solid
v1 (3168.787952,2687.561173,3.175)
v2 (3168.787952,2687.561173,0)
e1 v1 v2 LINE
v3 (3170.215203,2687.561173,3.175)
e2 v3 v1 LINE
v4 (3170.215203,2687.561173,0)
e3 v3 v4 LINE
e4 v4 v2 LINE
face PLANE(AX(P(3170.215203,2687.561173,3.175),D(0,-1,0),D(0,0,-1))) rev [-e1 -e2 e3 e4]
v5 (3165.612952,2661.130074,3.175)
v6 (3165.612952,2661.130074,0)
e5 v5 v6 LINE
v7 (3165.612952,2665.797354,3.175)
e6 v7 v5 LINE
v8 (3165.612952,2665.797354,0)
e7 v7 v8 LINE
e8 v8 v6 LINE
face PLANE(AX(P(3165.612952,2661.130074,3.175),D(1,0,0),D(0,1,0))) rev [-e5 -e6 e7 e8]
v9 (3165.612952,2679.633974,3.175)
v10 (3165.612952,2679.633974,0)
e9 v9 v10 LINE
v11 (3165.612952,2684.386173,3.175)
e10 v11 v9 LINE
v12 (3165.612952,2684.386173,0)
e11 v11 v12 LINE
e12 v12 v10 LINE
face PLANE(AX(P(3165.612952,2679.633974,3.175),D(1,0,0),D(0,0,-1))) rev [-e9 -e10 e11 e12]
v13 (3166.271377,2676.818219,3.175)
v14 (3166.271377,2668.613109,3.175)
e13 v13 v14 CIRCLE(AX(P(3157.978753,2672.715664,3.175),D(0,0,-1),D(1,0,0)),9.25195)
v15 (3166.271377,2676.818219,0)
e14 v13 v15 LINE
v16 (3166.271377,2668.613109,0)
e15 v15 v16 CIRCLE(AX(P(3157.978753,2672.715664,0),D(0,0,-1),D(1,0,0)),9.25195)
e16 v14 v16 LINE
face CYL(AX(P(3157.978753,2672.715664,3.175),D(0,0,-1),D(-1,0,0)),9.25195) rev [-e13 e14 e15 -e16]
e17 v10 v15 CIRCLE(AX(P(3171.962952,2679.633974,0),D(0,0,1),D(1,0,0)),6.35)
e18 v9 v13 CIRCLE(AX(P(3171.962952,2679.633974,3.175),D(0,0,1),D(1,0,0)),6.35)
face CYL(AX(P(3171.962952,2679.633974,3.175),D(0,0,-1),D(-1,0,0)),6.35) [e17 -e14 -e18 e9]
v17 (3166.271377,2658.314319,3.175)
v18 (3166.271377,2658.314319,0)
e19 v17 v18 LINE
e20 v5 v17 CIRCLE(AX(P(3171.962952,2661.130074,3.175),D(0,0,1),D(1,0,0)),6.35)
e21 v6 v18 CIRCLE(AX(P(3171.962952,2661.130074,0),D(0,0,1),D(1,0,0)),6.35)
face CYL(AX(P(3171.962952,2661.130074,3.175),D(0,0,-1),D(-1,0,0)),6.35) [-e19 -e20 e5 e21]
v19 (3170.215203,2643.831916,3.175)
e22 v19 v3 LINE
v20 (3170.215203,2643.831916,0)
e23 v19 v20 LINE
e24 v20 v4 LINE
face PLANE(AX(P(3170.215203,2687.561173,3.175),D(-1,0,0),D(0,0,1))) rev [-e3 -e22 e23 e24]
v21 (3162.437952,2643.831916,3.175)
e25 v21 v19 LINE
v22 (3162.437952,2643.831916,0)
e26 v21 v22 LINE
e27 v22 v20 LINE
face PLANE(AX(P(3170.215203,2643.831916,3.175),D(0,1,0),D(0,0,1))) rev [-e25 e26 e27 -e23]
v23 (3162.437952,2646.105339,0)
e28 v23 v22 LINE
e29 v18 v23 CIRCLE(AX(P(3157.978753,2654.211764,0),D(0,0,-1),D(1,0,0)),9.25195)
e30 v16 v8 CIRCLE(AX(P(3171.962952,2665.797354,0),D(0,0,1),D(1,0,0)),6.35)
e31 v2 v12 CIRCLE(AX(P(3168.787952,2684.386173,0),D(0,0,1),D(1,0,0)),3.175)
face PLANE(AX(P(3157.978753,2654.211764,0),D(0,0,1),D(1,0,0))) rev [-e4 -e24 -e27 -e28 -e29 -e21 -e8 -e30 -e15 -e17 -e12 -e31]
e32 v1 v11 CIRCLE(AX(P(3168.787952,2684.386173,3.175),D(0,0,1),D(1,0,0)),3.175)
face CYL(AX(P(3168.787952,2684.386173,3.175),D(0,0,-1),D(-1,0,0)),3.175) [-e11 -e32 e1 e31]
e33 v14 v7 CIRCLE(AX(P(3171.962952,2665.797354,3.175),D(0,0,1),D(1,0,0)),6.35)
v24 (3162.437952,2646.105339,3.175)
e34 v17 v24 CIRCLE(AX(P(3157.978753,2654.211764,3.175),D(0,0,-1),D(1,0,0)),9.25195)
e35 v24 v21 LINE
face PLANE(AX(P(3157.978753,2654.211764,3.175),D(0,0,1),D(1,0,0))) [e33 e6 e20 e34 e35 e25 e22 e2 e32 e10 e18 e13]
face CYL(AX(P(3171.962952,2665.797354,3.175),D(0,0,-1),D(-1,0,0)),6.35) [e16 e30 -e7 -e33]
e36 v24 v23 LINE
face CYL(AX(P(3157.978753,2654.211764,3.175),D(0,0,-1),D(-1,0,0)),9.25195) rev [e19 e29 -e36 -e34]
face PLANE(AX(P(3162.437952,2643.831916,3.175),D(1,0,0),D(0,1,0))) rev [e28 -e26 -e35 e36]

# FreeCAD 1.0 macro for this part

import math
import FreeCAD as App
import Part
import Sketcher
Q = App.Units.Quantity

doc = App.newDocument("Part")
body = doc.addObject("PartDesign::Body", "Body")

# Sketch on XY plane
sketch1 = body.newObject("Sketcher::SketchObject", "Sketch")
sketch1.AttachmentSupport = (doc.getObject("XY_Plane"), [""])
sketch1.MapMode = "FlatFace"
sketch1.addGeometry([
    Part.LineSegment(App.Vector(3170.215203, 2643.831916, 0), App.Vector(3170.215203, 2687.561173, 0)),  # 0
    Part.LineSegment(App.Vector(3170.215203, 2687.561173, 0), App.Vector(3168.787952, 2687.561173, 0)),  # 1
    Part.ArcOfCircle(Part.Circle(App.Vector(3168.787952, 2684.386173, 0), App.Vector(0, 0, 1), 3.175), math.radians(90), math.radians(180)),  # 2
    Part.LineSegment(App.Vector(3165.612952, 2684.386173, 0), App.Vector(3165.612952, 2679.633974, 0)),  # 3
    Part.ArcOfCircle(Part.Circle(App.Vector(3171.962952, 2679.633974, 0), App.Vector(0, 0, 1), 6.35), math.radians(-180), math.radians(-153.677323)),  # 4
    Part.ArcOfCircle(Part.Circle(App.Vector(3157.978753, 2672.715664, 0), App.Vector(0, 0, 1), 9.25195), math.radians(-26.322677), math.radians(26.322677)),  # 5
    Part.ArcOfCircle(Part.Circle(App.Vector(3171.962952, 2665.797354, 0), App.Vector(0, 0, 1), 6.35), math.radians(153.677323), math.radians(180)),  # 6
    Part.LineSegment(App.Vector(3165.612952, 2665.797354, 0), App.Vector(3165.612952, 2661.130074, 0)),  # 7
    Part.ArcOfCircle(Part.Circle(App.Vector(3171.962952, 2661.130074, 0), App.Vector(0, 0, 1), 6.35), math.radians(-180), math.radians(-153.677323)),  # 8
    Part.ArcOfCircle(Part.Circle(App.Vector(3157.978753, 2654.211764, 0), App.Vector(0, 0, 1), 9.25195), math.radians(-61.185594), math.radians(26.322677)),  # 9
    Part.LineSegment(App.Vector(3162.437952, 2646.105339, 0), App.Vector(3162.437952, 2643.831916, 0)),  # 10
    Part.LineSegment(App.Vector(3162.437952, 2643.831916, 0), App.Vector(3170.215203, 2643.831916, 0)),  # 11
], False)
sketch1.addConstraint([
    Sketcher.Constraint("Coincident", 0, 2, 1, 1),
    Sketcher.Constraint("Tangent", 1, 2, 2, 1),
    Sketcher.Constraint("Tangent", 2, 2, 3, 1),
    Sketcher.Constraint("Tangent", 3, 2, 4, 1),
    Sketcher.Constraint("Tangent", 4, 2, 5, 2),
    Sketcher.Constraint("Tangent", 5, 1, 6, 1),
    Sketcher.Constraint("Tangent", 6, 2, 7, 1),
    Sketcher.Constraint("Tangent", 7, 2, 8, 1),
    Sketcher.Constraint("Tangent", 8, 2, 9, 2),
    Sketcher.Constraint("Coincident", 9, 1, 10, 1),
    Sketcher.Constraint("Coincident", 10, 2, 11, 1),
    Sketcher.Constraint("Coincident", 11, 2, 0, 1),
    Sketcher.Constraint("Vertical", 0),
    Sketcher.Constraint("Horizontal", 1),
    Sketcher.Constraint("Vertical", 3),
    Sketcher.Constraint("Vertical", 7),
    Sketcher.Constraint("Vertical", 10),
    Sketcher.Constraint("Horizontal", 11),
    Sketcher.Constraint("Equal", 4, 6),
    Sketcher.Constraint("Equal", 6, 8),
    Sketcher.Constraint("Equal", 5, 9),
    Sketcher.Constraint("Vertical", 4, 3, 6, 3),
    Sketcher.Constraint("Vertical", 5, 3, 9, 3),
    Sketcher.Constraint("Radius", 4, Q("0.25 in")),
    Sketcher.Constraint("Radius", 2, Q("0.125 in")),
    Sketcher.Constraint("Radius", 5, 9.25195),
    Sketcher.Constraint("DistanceX", 9, 1, 7, 2, Q("0.125 in")),
    Sketcher.Constraint("DistanceY", 3, 2, 3, 1, 4.752199),
    Sketcher.Constraint("DistanceY", 8, 3, 4, 3, Q("0.7285 in")),
    Sketcher.Constraint("DistanceX", 1, 2, 1, 1, 1.427251),
    Sketcher.Constraint("DistanceY", 7, 2, 7, 1, 4.66728),
    Sketcher.Constraint("DistanceY", 0, 1, 0, 2, 43.729257),
    Sketcher.Constraint("DistanceX", -1, 1, 2, 3, 3168.787952),
    Sketcher.Constraint("DistanceY", -1, 1, 4, 2, 2676.818219),
])
pad1 = body.newObject("PartDesign::Pad", "Pad")
pad1.Profile = sketch1
pad1.Length = Q("0.125 in")

doc.recompute()
